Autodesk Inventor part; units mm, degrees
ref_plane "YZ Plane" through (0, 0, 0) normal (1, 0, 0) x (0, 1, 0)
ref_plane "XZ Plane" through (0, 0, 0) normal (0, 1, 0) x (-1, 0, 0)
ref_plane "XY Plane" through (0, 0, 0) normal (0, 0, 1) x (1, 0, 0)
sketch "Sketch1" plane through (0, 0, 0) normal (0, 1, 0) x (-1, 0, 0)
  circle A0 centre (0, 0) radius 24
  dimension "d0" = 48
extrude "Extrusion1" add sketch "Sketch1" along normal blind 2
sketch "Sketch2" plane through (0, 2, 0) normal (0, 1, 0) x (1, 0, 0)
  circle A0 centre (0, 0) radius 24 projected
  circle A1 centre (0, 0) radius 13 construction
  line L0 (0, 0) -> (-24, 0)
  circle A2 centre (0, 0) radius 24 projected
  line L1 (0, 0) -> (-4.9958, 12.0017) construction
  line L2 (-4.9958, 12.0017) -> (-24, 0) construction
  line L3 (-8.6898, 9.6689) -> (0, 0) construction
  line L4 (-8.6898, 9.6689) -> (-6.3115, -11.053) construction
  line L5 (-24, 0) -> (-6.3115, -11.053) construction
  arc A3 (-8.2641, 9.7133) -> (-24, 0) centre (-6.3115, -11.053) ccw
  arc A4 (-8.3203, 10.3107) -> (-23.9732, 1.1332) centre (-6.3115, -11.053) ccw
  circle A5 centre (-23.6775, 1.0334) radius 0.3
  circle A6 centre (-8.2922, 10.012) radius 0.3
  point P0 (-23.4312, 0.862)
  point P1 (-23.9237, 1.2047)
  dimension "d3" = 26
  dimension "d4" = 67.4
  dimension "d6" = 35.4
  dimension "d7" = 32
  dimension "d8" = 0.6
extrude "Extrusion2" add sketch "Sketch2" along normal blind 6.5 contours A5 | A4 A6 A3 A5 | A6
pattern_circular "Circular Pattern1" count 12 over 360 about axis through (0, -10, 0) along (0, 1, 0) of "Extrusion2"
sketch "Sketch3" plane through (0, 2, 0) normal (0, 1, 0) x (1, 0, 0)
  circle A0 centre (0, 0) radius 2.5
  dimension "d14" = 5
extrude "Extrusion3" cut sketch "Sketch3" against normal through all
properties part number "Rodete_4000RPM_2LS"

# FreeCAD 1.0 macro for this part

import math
import FreeCAD as App
import Part
import Sketcher

V = App.Vector

doc = App.newDocument("Part")
body = doc.addObject("PartDesign::Body", "Body")

# Sketch on XZ plane
sketch1 = body.newObject("Sketcher::SketchObject", "Sketch")
sketch1.AttachmentSupport = (doc.getObject("XZ_Plane"), [""])
sketch1.MapMode = "FlatFace"
sketch1.addGeometry(Part.Circle(V(0, 0, 0), V(0, 0, 1), 24), False)
sketch1.addConstraint(Sketcher.Constraint("Coincident", 0, 3, -1, 1))
sketch1.addConstraint(Sketcher.Constraint("Diameter", 0, 48.0))
pad1 = body.newObject("PartDesign::Pad", "Pad")
pad1.Profile = sketch1
pad1.Length = 2
pad1.Reversed = True

# Sketch on XZ plane
sketch2 = body.newObject("Sketcher::SketchObject", "Sketch001")
sketch2.AttachmentSupport = (doc.getObject("XZ_Plane"), [""])
sketch2.MapMode = "FlatFace"
sketch2.AttachmentOffset = App.Placement(V(0, 0, -2), App.Rotation())
sketch2.addGeometry(Part.ArcOfCircle(Part.Circle(V(-23.6775, -1.0334, 0), V(0, 0, 1), 0.3), math.radians(34.837168), math.radians(214.836369)), False)
sketch2.addGeometry(Part.ArcOfCircle(Part.Circle(V(-6.3115, 11.053, 0), V(0, 0, 1), 20.857897), math.radians(-145.16283), math.radians(-95.371577)), False)
sketch2.addGeometry(Part.ArcOfCircle(Part.Circle(V(-8.2922, -10.012, 0), V(0, 0, 1), 0.3), math.radians(-95.374245), math.radians(84.625755)), False)
sketch2.addGeometry(Part.ArcOfCircle(Part.Circle(V(-6.3115, 11.053, 0), V(0, 0, 1), 21.457935), math.radians(-145.162841), math.radians(-95.371651)), False)
sketch2.addConstraint(Sketcher.Constraint("Tangent", 0, 1, 1, 1))
sketch2.addConstraint(Sketcher.Constraint("Tangent", 1, 2, 2, 2))
sketch2.addConstraint(Sketcher.Constraint("Tangent", 2, 1, 3, 2))
sketch2.addConstraint(Sketcher.Constraint("Tangent", 3, 1, 0, 2))
sketch2.addConstraint(Sketcher.Constraint("Coincident", 3, 3, 1, 3))
sketch2.addConstraint(Sketcher.Constraint("Radius", 0, 0.3))
sketch2.addConstraint(Sketcher.Constraint("Radius", 1, 20.858))
sketch2.addConstraint(Sketcher.Constraint("DistanceY", 2, 3, 0, 1, 9.15))
sketch2.addConstraint(Sketcher.Constraint("DistanceY", -1, 1, 1, 3, 11.053))
sketch2.addConstraint(Sketcher.Constraint("DistanceY", 2, 3, -1, 1, 10.012))
sketch2.addConstraint(Sketcher.Constraint("DistanceX", 1, 2, -1, 1, 8.264))
pad2 = body.newObject("PartDesign::Pad", "Pad001")
pad2.Profile = sketch2
pad2.Length = 6.5
pad2.Reversed = True
doc.recompute()

polarpattern = body.newObject("PartDesign::PolarPattern", "PolarPattern")
polarpattern.Originals = [pad2]
polarpattern.Axis = (doc.getObject("Y_Axis"), [""])
polarpattern.Angle = 360
polarpattern.Occurrences = 12
body.Tip = polarpattern

# Sketch on XZ plane
sketch3 = body.newObject("Sketcher::SketchObject", "Sketch002")
sketch3.AttachmentSupport = (doc.getObject("XZ_Plane"), [""])
sketch3.MapMode = "FlatFace"
sketch3.AttachmentOffset = App.Placement(V(0, 0, -2), App.Rotation())
sketch3.addGeometry(Part.Circle(V(0, 0, 0), V(0, 0, 1), 2.5), False)
sketch3.addConstraint(Sketcher.Constraint("Coincident", 0, 3, -1, 1))
sketch3.addConstraint(Sketcher.Constraint("Diameter", 0, 5.0))
pocket1 = body.newObject("PartDesign::Pocket", "Pocket")
pocket1.Profile = sketch3
pocket1.Type = "ThroughAll"
pocket1.Reversed = True

doc.recompute()
